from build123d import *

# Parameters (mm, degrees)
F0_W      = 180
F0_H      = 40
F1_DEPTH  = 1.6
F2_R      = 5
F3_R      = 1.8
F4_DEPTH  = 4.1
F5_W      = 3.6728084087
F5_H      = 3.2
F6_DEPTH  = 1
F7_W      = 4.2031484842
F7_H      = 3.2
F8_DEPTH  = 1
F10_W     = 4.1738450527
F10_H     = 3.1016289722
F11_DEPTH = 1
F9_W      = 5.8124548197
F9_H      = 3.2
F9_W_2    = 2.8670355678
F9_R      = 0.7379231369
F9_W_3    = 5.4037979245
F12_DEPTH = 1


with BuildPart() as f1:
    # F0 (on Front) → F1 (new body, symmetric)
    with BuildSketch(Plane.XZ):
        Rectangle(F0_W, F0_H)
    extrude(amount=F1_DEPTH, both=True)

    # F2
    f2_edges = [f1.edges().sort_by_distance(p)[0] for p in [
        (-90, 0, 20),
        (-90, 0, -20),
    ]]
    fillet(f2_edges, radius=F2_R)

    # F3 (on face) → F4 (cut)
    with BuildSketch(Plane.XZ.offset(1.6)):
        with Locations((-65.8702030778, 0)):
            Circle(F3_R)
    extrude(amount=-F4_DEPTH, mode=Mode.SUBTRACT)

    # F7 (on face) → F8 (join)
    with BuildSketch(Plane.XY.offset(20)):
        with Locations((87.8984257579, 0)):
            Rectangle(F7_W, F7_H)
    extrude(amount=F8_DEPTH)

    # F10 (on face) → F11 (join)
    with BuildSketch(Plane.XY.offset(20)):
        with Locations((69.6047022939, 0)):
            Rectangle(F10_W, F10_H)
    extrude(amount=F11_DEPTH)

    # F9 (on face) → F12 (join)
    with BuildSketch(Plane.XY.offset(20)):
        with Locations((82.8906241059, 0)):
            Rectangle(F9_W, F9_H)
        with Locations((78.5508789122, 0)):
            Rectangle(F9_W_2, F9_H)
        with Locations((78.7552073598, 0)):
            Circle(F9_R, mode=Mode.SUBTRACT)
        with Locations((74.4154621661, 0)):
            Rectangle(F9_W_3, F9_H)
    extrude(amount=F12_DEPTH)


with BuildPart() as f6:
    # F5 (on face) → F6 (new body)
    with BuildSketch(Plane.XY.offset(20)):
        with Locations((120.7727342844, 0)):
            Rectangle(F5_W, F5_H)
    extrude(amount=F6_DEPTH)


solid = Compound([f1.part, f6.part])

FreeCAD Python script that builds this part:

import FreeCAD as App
import Part
import Sketcher
from FreeCAD import Vector
Q = App.Units.Quantity


def edges_at(feature, points):
    """Names of the edges that pass closest to the given points."""
    edges = feature.Shape.Edges
    near = lambda p: min(range(len(edges)), key=lambda i: edges[i].distToShape(Part.Vertex(*p))[0])
    return sorted({f"Edge{near(p) + 1}" for p in points})

doc = App.newDocument("Part")
body = doc.addObject("PartDesign::Body", "Body")

# Sketch on XZ plane
sketch1 = doc.addObject("Sketcher::SketchObject", "Sketch")
body.addObject(sketch1)
sketch1.AttachmentSupport = (doc.XZ_Plane, [""])
sketch1.MapMode = "FlatFace"
sketch1.addGeometry([
    Part.LineSegment(Vector(-90, 20, 0), Vector(-90, -20, 0)),
    Part.LineSegment(Vector(-90, -20, 0), Vector(90, -20, 0)),
    Part.LineSegment(Vector(90, -20, 0), Vector(90, 20, 0)),
    Part.LineSegment(Vector(90, 20, 0), Vector(-90, 20, 0)),
], False)
sketch1.addConstraint([
    Sketcher.Constraint("Coincident", 0, 2, 1, 1),
    Sketcher.Constraint("Coincident", 1, 2, 2, 1),
    Sketcher.Constraint("Coincident", 2, 2, 3, 1),
    Sketcher.Constraint("Coincident", 3, 2, 0, 1),
    Sketcher.Constraint("Vertical", 0),
    Sketcher.Constraint("Horizontal", 1),
    Sketcher.Constraint("Vertical", 2),
    Sketcher.Constraint("Horizontal", 3),
    Sketcher.Constraint("Symmetric", 0, 2, 2, 2, -1, 1),
    Sketcher.Constraint("DistanceX", 1, 1, 1, 2, Q("180 mm")),
    Sketcher.Constraint("DistanceY", 0, 2, 0, 1, Q("40 mm")),
])
pad1 = doc.addObject("PartDesign::Pad", "Pad")
body.addObject(pad1)
pad1.Profile = sketch1
pad1.Length = 3.2
pad1.Midplane = True
doc.recompute()

fillet = doc.addObject("PartDesign::Fillet", "Fillet")
body.addObject(fillet)
fillet.Base = (pad1, edges_at(pad1, [(-90, 0, 20), (-90, 0, -20)]))
fillet.Radius = 5

# Sketch on XZ plane
sketch2 = doc.addObject("Sketcher::SketchObject", "Sketch001")
body.addObject(sketch2)
sketch2.AttachmentSupport = (doc.XZ_Plane, [""])
sketch2.MapMode = "FlatFace"
sketch2.AttachmentOffset = App.Placement(Vector(0, 0, 1.6), App.Rotation())
sketch2.addGeometry(Part.Circle(Vector(-65.9, 0, 0), Vector(0, 0, 1), 1.8), False)
sketch2.addConstraint([
    Sketcher.Constraint("PointOnObject", 0, 3, -1),
    Sketcher.Constraint("Diameter", 0, Q("3.6 mm")),
    Sketcher.Constraint("DistanceX", 0, 3, -1, 1, Q("65.870203 mm")),
])
pocket1 = doc.addObject("PartDesign::Pocket", "Pocket")
body.addObject(pocket1)
pocket1.Profile = sketch2
pocket1.Length = 4.1

# Sketch on XY plane
sketch3 = doc.addObject("Sketcher::SketchObject", "Sketch002")
body.addObject(sketch3)
sketch3.AttachmentSupport = (doc.XY_Plane, [""])
sketch3.MapMode = "FlatFace"
sketch3.AttachmentOffset = App.Placement(Vector(0, 0, 20), App.Rotation())
sketch3.addGeometry([
    Part.LineSegment(Vector(85.8, 1.6, 0), Vector(85.8, -1.6, 0)),
    Part.LineSegment(Vector(85.8, -1.6, 0), Vector(90, -1.6, 0)),
    Part.LineSegment(Vector(90, -1.6, 0), Vector(90, 1.6, 0)),
    Part.LineSegment(Vector(90, 1.6, 0), Vector(85.8, 1.6, 0)),
], False)
sketch3.addConstraint([
    Sketcher.Constraint("Coincident", 0, 2, 1, 1),
    Sketcher.Constraint("Coincident", 1, 2, 2, 1),
    Sketcher.Constraint("Coincident", 2, 2, 3, 1),
    Sketcher.Constraint("Coincident", 3, 2, 0, 1),
    Sketcher.Constraint("Vertical", 0),
    Sketcher.Constraint("Horizontal", 1),
    Sketcher.Constraint("Vertical", 2),
    Sketcher.Constraint("Horizontal", 3),
    Sketcher.Constraint("DistanceY", 0, 2, 0, 1, Q("3.2 mm")),
    Sketcher.Constraint("DistanceX", -1, 1, 1, 2, Q("90 mm")),
    Sketcher.Constraint("DistanceY", 0, 2, -1, 1, Q("1.6 mm")),
    Sketcher.Constraint("DistanceX", 1, 1, 1, 2, Q("4.203148 mm")),
])
pad2 = doc.addObject("PartDesign::Pad", "Pad001")
body.addObject(pad2)
pad2.Profile = sketch3
pad2.Length = 1

# Sketch on XY plane
sketch4 = doc.addObject("Sketcher::SketchObject", "Sketch003")
body.addObject(sketch4)
sketch4.AttachmentSupport = (doc.XY_Plane, [""])
sketch4.MapMode = "FlatFace"
sketch4.AttachmentOffset = App.Placement(Vector(0, 0, 20), App.Rotation())
sketch4.addGeometry([
    Part.LineSegment(Vector(67.5, 1.6, 0), Vector(67.5, -1.6, 0)),
    Part.LineSegment(Vector(67.5, -1.6, 0), Vector(71.7, -1.6, 0)),
    Part.LineSegment(Vector(71.7, -1.6, 0), Vector(71.7, 1.6, 0)),
    Part.LineSegment(Vector(71.7, 1.6, 0), Vector(67.5, 1.6, 0)),
], False)
sketch4.addConstraint([
    Sketcher.Constraint("Coincident", 0, 2, 1, 1),
    Sketcher.Constraint("Coincident", 1, 2, 2, 1),
    Sketcher.Constraint("Coincident", 2, 2, 3, 1),
    Sketcher.Constraint("Coincident", 3, 2, 0, 1),
    Sketcher.Constraint("Vertical", 0),
    Sketcher.Constraint("Horizontal", 1),
    Sketcher.Constraint("Vertical", 2),
    Sketcher.Constraint("Horizontal", 3),
    Sketcher.Constraint("DistanceY", 0, 2, 0, 1, Q("3.101629 mm")),
    Sketcher.Constraint("DistanceX", 1, 1, 1, 2, Q("4.173845 mm")),
    Sketcher.Constraint("DistanceX", -1, 1, 0, 2, Q("67.51778 mm")),
    Sketcher.Constraint("DistanceY", 0, 2, -1, 1, Q("1.550814 mm")),
])
pad3 = doc.addObject("PartDesign::Pad", "Pad002")
body.addObject(pad3)
pad3.Profile = sketch4
pad3.Length = 1

# Sketch on XY plane
sketch5 = doc.addObject("Sketcher::SketchObject", "Sketch004")
body.addObject(sketch5)
sketch5.AttachmentSupport = (doc.XY_Plane, [""])
sketch5.MapMode = "FlatFace"
sketch5.AttachmentOffset = App.Placement(Vector(0, 0, 20), App.Rotation())
sketch5.addGeometry([
    Part.LineSegment(Vector(85.8, -1.6, 0), Vector(85.8, 1.6, 0)),  # 0
    Part.LineSegment(Vector(85.8, 1.6, 0), Vector(71.7, 1.6, 0)),  # 1
    Part.LineSegment(Vector(71.7, 1.6, 0), Vector(71.7, -1.6, 0)),  # 2
    Part.LineSegment(Vector(71.7, -1.6, 0), Vector(85.8, -1.6, 0)),  # 3
    Part.Circle(Vector(78.8, 0, 0), Vector(0, 0, 1), 0.7),  # 4
], False)
sketch5.addConstraint([
    Sketcher.Constraint("Coincident", 0, 2, 1, 1),
    Sketcher.Constraint("Coincident", 1, 2, 2, 1),
    Sketcher.Constraint("Coincident", 2, 2, 3, 1),
    Sketcher.Constraint("Coincident", 3, 2, 0, 1),
    Sketcher.Constraint("Vertical", 0),
    Sketcher.Constraint("Horizontal", 1),
    Sketcher.Constraint("Vertical", 2),
    Sketcher.Constraint("Horizontal", 3),
    Sketcher.Constraint("PointOnObject", 4, 3, -1),
    Sketcher.Constraint("DistanceY", 0, 1, 0, 2, Q("3.2 mm")),
    Sketcher.Constraint("DistanceY", -1, 1, 0, 2, Q("1.6 mm")),
    Sketcher.Constraint("Diameter", 4, Q("1.475846 mm")),
    Sketcher.Constraint("DistanceX", 1, 2, 1, 1, Q("14.083288 mm")),
    Sketcher.Constraint("DistanceX", -1, 1, 0, 2, Q("85.796852 mm")),
    Sketcher.Constraint("DistanceX", -1, 1, 4, 3, Q("78.755207 mm")),
])
pad4 = doc.addObject("PartDesign::Pad", "Pad003")
body.addObject(pad4)
pad4.Profile = sketch5
pad4.Length = 1
body2 = doc.addObject("PartDesign::Body", "Body001")

# Sketch on XY plane
sketch6 = doc.addObject("Sketcher::SketchObject", "Sketch005")
body2.addObject(sketch6)
sketch6.AttachmentSupport = (doc.getObject("XY_Plane001"), [""])
sketch6.MapMode = "FlatFace"
sketch6.AttachmentOffset = App.Placement(Vector(0, 0, 20), App.Rotation())
sketch6.addGeometry([
    Part.LineSegment(Vector(118.9, 1.6, 0), Vector(118.9, -1.6, 0)),
    Part.LineSegment(Vector(118.9, -1.6, 0), Vector(122.6, -1.6, 0)),
    Part.LineSegment(Vector(122.6, -1.6, 0), Vector(122.6, 1.6, 0)),
    Part.LineSegment(Vector(122.6, 1.6, 0), Vector(118.9, 1.6, 0)),
], False)
sketch6.addConstraint([
    Sketcher.Constraint("Coincident", 0, 2, 1, 1),
    Sketcher.Constraint("Coincident", 1, 2, 2, 1),
    Sketcher.Constraint("Coincident", 2, 2, 3, 1),
    Sketcher.Constraint("Coincident", 3, 2, 0, 1),
    Sketcher.Constraint("Vertical", 0),
    Sketcher.Constraint("Horizontal", 1),
    Sketcher.Constraint("Vertical", 2),
    Sketcher.Constraint("Horizontal", 3),
    Sketcher.Constraint("DistanceY", 0, 2, 0, 1, Q("3.2 mm")),
    Sketcher.Constraint("DistanceY", 0, 2, -1, 1, Q("1.6 mm")),
    Sketcher.Constraint("DistanceX", 1, 1, 1, 2, Q("3.672808 mm")),
    Sketcher.Constraint("DistanceX", -1, 1, 0, 2, Q("118.93633 mm")),
])
pad5 = doc.addObject("PartDesign::Pad", "Pad004")
body2.addObject(pad5)
pad5.Profile = sketch6
pad5.Length = 1

doc.recompute()
